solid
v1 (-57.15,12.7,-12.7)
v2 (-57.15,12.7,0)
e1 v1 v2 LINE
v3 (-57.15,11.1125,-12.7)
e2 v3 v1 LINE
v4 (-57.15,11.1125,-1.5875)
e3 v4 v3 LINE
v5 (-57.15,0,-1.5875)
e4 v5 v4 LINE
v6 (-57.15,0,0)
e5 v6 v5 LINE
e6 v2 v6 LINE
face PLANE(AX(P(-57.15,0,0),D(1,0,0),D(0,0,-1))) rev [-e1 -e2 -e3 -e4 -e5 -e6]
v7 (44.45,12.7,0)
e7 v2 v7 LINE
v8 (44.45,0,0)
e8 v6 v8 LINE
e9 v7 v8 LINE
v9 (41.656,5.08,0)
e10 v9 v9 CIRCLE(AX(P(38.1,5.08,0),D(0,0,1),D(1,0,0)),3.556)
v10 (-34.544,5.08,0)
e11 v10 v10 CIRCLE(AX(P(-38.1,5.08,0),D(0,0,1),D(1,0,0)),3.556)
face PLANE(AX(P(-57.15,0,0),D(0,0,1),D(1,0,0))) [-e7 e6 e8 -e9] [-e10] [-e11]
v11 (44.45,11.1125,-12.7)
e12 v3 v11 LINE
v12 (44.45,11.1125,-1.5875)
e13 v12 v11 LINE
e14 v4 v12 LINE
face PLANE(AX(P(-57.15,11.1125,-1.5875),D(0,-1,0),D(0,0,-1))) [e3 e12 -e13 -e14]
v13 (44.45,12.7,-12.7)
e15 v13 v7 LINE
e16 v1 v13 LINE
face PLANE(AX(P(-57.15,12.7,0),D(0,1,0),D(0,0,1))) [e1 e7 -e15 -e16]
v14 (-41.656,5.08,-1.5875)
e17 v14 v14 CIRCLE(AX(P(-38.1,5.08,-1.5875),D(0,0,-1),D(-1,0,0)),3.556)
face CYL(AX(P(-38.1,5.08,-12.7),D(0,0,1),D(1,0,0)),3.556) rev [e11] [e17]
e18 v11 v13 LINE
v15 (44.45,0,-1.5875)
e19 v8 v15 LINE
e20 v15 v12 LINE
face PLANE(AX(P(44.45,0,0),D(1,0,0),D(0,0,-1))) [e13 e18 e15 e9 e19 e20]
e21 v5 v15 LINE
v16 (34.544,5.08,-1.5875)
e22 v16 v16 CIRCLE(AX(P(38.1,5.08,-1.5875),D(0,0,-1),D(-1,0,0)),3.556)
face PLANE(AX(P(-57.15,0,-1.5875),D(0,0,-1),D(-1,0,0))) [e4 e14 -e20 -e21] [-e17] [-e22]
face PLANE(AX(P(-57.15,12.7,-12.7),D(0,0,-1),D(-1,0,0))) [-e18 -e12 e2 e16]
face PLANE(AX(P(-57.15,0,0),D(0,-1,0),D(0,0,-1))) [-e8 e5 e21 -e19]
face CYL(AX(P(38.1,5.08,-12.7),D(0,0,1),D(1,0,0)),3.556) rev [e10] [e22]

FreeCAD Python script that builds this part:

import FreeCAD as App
import Part
import Sketcher
Q = App.Units.Quantity


def add_polygon(sketch, points):
    """Adds a closed chain of lines whose ends are joined by coincident constraints."""
    first, n = sketch.GeometryCount, len(points)
    for a, b in zip(points, points[1:] + points[:1]):
        sketch.addGeometry(Part.LineSegment(App.Vector(*a, 0), App.Vector(*b, 0)), False)
    for i in range(n):
        sketch.addConstraint(Sketcher.Constraint("Coincident", first + i, 2, first + (i + 1) % n, 1))

doc = App.newDocument("Part")
body = doc.addObject("PartDesign::Body", "Body")

sketch1 = body.newObject("Sketcher::SketchObject", "Sketch")
sketch1.AttachmentSupport = (doc.getObject("YZ_Plane"), [""])
sketch1.MapMode = "FlatFace"
add_polygon(sketch1, [(12.7, 0), (0, 0), (0, -1.6), (11.1, -1.6), (11.1, -12.7), (12.7, -12.7)])
sketch1.addConstraint([
    Sketcher.Constraint("Horizontal", 0),
    Sketcher.Constraint("Vertical", 1),
    Sketcher.Constraint("Horizontal", 2),
    Sketcher.Constraint("Vertical", 3),
    Sketcher.Constraint("Horizontal", 4),
    Sketcher.Constraint("Vertical", 5),
    Sketcher.Constraint("Coincident", 0, 2, -1, 1),
    Sketcher.Constraint("Equal", 4, 1),
    Sketcher.Constraint("Equal", 2, 3),
    Sketcher.Constraint("DistanceX", 0, 2, 0, 1, Q("0.5 in")),
    Sketcher.Constraint("DistanceX", 2, 1, 2, 2, Q("0.4375 in")),
])
pad1 = body.newObject("PartDesign::Pad", "Pad")
pad1.Profile = sketch1
pad1.Type = "TwoLengths"
pad1.Length = Q("1.75 in")
pad1.Length2 = Q("2.25 in")

sketch2 = body.newObject("Sketcher::SketchObject", "Sketch001")
sketch2.AttachmentSupport = (doc.getObject("XY_Plane"), [""])
sketch2.MapMode = "FlatFace"
sketch2.addGeometry([
    Part.Circle(App.Vector(-38.1, 5.1, 0), App.Vector(0, 0, 1), 3.6),
    Part.Circle(App.Vector(38.1, 5.1, 0), App.Vector(0, 0, 1), 3.6),
], False)
sketch2.addConstraint([
    Sketcher.Constraint("Equal", 0, 1),
    Sketcher.Constraint("Symmetric", 0, 3, 1, 3, -2),
    Sketcher.Constraint("Diameter", 0, Q("0.28 in")),
    Sketcher.Constraint("DistanceX", 0, 3, 1, 3, Q("3 in")),
    Sketcher.Constraint("DistanceY", -1, 1, 0, 3, Q("0.2 in")),
])
pocket1 = body.newObject("PartDesign::Pocket", "Pocket")
pocket1.Profile = sketch2
pocket1.Type = "ThroughAll"

doc.recompute()
